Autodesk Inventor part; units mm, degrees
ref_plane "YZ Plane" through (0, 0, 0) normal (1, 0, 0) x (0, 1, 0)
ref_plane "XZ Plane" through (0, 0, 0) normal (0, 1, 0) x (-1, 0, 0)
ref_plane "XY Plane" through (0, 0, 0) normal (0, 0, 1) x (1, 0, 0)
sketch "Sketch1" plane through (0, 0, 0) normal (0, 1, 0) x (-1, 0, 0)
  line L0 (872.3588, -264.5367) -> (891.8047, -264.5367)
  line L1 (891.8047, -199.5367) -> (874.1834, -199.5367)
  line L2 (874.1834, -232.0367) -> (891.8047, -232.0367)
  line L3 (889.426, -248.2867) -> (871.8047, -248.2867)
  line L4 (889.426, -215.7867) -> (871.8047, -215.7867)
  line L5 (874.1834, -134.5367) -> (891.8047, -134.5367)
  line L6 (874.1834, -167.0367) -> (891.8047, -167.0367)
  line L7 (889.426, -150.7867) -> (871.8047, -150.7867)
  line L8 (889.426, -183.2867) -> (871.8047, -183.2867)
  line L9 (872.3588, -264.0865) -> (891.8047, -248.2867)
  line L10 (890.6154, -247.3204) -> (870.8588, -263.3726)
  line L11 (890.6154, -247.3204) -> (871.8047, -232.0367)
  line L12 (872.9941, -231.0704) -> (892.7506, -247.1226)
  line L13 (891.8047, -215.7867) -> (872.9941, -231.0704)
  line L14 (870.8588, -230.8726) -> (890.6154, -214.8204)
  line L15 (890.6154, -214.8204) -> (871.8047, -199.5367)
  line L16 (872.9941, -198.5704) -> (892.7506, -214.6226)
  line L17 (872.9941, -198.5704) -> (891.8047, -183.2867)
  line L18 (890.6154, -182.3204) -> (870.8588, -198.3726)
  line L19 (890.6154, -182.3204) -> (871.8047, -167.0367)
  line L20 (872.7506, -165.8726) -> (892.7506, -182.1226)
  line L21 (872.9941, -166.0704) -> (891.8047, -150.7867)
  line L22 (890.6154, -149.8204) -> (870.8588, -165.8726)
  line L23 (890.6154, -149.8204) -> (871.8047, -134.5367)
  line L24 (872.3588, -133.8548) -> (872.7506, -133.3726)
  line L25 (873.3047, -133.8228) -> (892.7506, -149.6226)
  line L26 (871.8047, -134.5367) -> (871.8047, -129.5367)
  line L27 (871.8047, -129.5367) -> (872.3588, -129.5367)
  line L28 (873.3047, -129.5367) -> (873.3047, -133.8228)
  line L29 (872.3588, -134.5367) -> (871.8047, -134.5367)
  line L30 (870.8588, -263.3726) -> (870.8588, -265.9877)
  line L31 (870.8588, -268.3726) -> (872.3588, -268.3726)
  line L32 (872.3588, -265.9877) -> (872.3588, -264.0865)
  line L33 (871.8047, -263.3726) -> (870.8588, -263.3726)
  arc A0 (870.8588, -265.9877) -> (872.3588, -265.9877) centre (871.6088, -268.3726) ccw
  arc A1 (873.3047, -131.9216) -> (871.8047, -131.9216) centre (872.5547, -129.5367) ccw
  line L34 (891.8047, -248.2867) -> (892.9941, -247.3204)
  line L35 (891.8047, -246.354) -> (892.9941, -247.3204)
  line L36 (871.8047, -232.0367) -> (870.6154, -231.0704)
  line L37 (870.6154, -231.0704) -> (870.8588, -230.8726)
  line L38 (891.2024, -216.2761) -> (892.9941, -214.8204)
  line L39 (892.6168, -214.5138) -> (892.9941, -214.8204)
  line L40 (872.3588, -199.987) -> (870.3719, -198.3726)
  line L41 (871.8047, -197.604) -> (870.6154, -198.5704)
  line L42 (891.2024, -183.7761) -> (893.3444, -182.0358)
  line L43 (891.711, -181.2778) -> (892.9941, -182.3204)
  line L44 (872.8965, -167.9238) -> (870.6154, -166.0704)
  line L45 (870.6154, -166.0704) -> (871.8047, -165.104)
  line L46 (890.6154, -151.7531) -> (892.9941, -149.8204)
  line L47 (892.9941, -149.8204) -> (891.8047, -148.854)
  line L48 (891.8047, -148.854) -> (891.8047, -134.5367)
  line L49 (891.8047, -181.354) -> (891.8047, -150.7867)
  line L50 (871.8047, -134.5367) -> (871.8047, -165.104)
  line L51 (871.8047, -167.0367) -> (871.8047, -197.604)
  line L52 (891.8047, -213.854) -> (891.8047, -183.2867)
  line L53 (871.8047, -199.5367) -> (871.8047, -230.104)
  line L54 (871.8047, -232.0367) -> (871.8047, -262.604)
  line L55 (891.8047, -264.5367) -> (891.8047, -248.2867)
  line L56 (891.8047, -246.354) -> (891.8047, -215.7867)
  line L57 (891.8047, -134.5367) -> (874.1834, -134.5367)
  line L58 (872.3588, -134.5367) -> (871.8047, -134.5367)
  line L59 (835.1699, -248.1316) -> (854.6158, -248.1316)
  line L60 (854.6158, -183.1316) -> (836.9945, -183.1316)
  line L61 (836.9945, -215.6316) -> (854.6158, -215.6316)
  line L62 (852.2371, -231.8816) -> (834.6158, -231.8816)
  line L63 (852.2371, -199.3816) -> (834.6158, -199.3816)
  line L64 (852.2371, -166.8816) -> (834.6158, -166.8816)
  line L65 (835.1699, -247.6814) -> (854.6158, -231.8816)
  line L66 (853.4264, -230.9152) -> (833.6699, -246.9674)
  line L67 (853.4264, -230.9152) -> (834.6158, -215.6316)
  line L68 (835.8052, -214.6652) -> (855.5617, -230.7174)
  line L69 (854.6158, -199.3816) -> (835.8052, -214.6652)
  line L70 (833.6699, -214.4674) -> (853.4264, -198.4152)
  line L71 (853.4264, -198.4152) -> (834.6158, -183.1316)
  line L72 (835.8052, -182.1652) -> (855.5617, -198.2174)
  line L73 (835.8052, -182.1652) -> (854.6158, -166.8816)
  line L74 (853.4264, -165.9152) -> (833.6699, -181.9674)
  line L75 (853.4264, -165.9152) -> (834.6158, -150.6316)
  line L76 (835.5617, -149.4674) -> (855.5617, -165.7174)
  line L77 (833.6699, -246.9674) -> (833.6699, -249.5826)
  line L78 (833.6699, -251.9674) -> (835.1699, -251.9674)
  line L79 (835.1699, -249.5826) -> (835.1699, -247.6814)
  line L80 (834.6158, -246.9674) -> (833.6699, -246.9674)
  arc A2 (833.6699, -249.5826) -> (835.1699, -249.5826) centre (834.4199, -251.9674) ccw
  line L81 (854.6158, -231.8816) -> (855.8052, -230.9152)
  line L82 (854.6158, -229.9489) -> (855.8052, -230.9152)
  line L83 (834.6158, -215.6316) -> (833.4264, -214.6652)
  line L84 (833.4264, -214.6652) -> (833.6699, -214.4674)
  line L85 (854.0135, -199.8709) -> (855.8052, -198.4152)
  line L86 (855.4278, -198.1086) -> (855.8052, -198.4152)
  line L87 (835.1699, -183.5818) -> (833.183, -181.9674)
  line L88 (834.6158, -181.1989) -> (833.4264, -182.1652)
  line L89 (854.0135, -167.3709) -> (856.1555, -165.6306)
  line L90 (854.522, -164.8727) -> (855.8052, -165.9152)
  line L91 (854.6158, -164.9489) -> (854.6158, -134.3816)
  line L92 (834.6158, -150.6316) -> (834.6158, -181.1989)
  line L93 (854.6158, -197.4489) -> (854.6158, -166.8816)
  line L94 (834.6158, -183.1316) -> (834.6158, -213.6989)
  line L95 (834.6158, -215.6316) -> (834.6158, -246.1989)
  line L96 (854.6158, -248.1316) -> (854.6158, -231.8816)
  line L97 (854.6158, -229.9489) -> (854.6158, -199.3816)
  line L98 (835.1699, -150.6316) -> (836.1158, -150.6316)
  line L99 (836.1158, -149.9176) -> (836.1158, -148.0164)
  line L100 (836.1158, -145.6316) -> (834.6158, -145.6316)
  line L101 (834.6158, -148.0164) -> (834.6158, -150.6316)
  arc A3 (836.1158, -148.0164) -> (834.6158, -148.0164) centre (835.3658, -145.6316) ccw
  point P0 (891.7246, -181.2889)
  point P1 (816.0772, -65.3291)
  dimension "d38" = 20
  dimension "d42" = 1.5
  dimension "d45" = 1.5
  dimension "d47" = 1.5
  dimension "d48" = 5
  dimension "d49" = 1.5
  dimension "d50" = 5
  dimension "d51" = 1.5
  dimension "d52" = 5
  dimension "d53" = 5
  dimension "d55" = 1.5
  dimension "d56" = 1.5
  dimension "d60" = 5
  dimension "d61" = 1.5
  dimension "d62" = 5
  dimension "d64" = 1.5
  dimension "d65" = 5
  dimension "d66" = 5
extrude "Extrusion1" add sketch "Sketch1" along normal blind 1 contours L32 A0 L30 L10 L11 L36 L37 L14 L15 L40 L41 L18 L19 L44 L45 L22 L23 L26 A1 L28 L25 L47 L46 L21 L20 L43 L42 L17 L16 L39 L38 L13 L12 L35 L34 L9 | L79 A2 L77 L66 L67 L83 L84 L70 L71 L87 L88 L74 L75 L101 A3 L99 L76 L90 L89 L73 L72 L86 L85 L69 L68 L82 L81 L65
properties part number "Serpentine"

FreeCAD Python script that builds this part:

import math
import FreeCAD as App
import Part
import Sketcher

doc = App.newDocument("Part")
body = doc.addObject("PartDesign::Body", "Body")
body.AllowCompound = True

# Sketch on XZ plane
sketch1 = body.newObject("Sketcher::SketchObject", "Sketch")
sketch1.AttachmentSupport = (doc.getObject("XZ_Plane"), [""])
sketch1.MapMode = "FlatFace"
sketch1.addGeometry([
    Part.LineSegment(App.Vector(-872.36, -265.99, 0), App.Vector(-872.36, -264.09, 0)),  # 0
    Part.LineSegment(App.Vector(-872.36, -264.09, 0), App.Vector(-891.8, -248.29, 0)),  # 1
    Part.LineSegment(App.Vector(-891.8, -248.29, 0), App.Vector(-892.99, -247.32, 0)),  # 2
    Part.LineSegment(App.Vector(-892.99, -247.32, 0), App.Vector(-892.75, -247.12, 0)),  # 3
    Part.LineSegment(App.Vector(-892.75, -247.12, 0), App.Vector(-872.99, -231.07, 0)),  # 4
    Part.LineSegment(App.Vector(-872.99, -231.07, 0), App.Vector(-891.8, -215.79, 0)),  # 5
    Part.LineSegment(App.Vector(-891.8, -215.79, 0), App.Vector(-892.99, -214.82, 0)),  # 6
    Part.LineSegment(App.Vector(-892.99, -214.82, 0), App.Vector(-892.75, -214.62, 0)),  # 7
    Part.LineSegment(App.Vector(-892.75, -214.62, 0), App.Vector(-872.99, -198.57, 0)),  # 8
    Part.LineSegment(App.Vector(-872.99, -198.57, 0), App.Vector(-891.8, -183.29, 0)),  # 9
    Part.LineSegment(App.Vector(-891.8, -183.29, 0), App.Vector(-892.99, -182.32, 0)),  # 10
    Part.LineSegment(App.Vector(-892.99, -182.32, 0), App.Vector(-892.75, -182.12, 0)),  # 11
    Part.LineSegment(App.Vector(-892.75, -182.12, 0), App.Vector(-872.99, -166.07, 0)),  # 12
    Part.LineSegment(App.Vector(-872.99, -166.07, 0), App.Vector(-891.8, -150.79, 0)),  # 13
    Part.LineSegment(App.Vector(-891.8, -150.79, 0), App.Vector(-892.99, -149.82, 0)),  # 14
    Part.LineSegment(App.Vector(-892.99, -149.82, 0), App.Vector(-892.75, -149.62, 0)),  # 15
    Part.LineSegment(App.Vector(-892.75, -149.62, 0), App.Vector(-873.3, -133.82, 0)),  # 16
    Part.LineSegment(App.Vector(-873.3, -133.82, 0), App.Vector(-873.3, -131.92, 0)),  # 17
    Part.ArcOfCircle(Part.Circle(App.Vector(-872.55, -129.54, 0), App.Vector(0, 0, 1), 2.5), math.radians(-73), math.radians(253)),  # 18
    Part.LineSegment(App.Vector(-871.8, -131.92, 0), App.Vector(-871.8, -134.54, 0)),  # 19
    Part.LineSegment(App.Vector(-871.8, -134.54, 0), App.Vector(-890.62, -149.82, 0)),  # 20
    Part.LineSegment(App.Vector(-890.62, -149.82, 0), App.Vector(-870.86, -165.87, 0)),  # 21
    Part.LineSegment(App.Vector(-870.86, -165.87, 0), App.Vector(-870.62, -166.07, 0)),  # 22
    Part.LineSegment(App.Vector(-870.62, -166.07, 0), App.Vector(-871.8, -167.04, 0)),  # 23
    Part.LineSegment(App.Vector(-871.8, -167.04, 0), App.Vector(-890.62, -182.32, 0)),  # 24
    Part.LineSegment(App.Vector(-890.62, -182.32, 0), App.Vector(-870.86, -198.37, 0)),  # 25
    Part.LineSegment(App.Vector(-870.86, -198.37, 0), App.Vector(-870.62, -198.57, 0)),  # 26
    Part.LineSegment(App.Vector(-870.62, -198.57, 0), App.Vector(-871.8, -199.54, 0)),  # 27
    Part.LineSegment(App.Vector(-871.8, -199.54, 0), App.Vector(-890.62, -214.82, 0)),  # 28
    Part.LineSegment(App.Vector(-890.62, -214.82, 0), App.Vector(-870.86, -230.87, 0)),  # 29
    Part.LineSegment(App.Vector(-870.86, -230.87, 0), App.Vector(-870.62, -231.07, 0)),  # 30
    Part.LineSegment(App.Vector(-870.62, -231.07, 0), App.Vector(-871.8, -232.04, 0)),  # 31
    Part.LineSegment(App.Vector(-871.8, -232.04, 0), App.Vector(-890.62, -247.32, 0)),  # 32
    Part.LineSegment(App.Vector(-890.62, -247.32, 0), App.Vector(-870.86, -263.37, 0)),  # 33
    Part.LineSegment(App.Vector(-870.86, -263.37, 0), App.Vector(-870.86, -265.99, 0)),  # 34
    Part.ArcOfCircle(Part.Circle(App.Vector(-871.61, -268.37, 0), App.Vector(0, 0, 1), 2.5), math.radians(107), math.radians(433)),  # 35
    Part.LineSegment(App.Vector(-835.17, -249.58, 0), App.Vector(-835.17, -247.68, 0)),  # 36
    Part.LineSegment(App.Vector(-835.17, -247.68, 0), App.Vector(-854.62, -231.88, 0)),  # 37
    Part.LineSegment(App.Vector(-854.62, -231.88, 0), App.Vector(-855.81, -230.92, 0)),  # 38
    Part.LineSegment(App.Vector(-855.81, -230.92, 0), App.Vector(-855.56, -230.72, 0)),  # 39
    Part.LineSegment(App.Vector(-855.56, -230.72, 0), App.Vector(-835.81, -214.67, 0)),  # 40
    Part.LineSegment(App.Vector(-835.81, -214.67, 0), App.Vector(-854.62, -199.38, 0)),  # 41
    Part.LineSegment(App.Vector(-854.62, -199.38, 0), App.Vector(-855.81, -198.42, 0)),  # 42
    Part.LineSegment(App.Vector(-855.81, -198.42, 0), App.Vector(-855.56, -198.22, 0)),  # 43
    Part.LineSegment(App.Vector(-855.56, -198.22, 0), App.Vector(-835.81, -182.17, 0)),  # 44
    Part.LineSegment(App.Vector(-835.81, -182.17, 0), App.Vector(-854.62, -166.88, 0)),  # 45
    Part.LineSegment(App.Vector(-854.62, -166.88, 0), App.Vector(-855.81, -165.92, 0)),  # 46
    Part.LineSegment(App.Vector(-855.81, -165.92, 0), App.Vector(-855.56, -165.72, 0)),  # 47
    Part.LineSegment(App.Vector(-855.56, -165.72, 0), App.Vector(-836.12, -149.92, 0)),  # 48
    Part.LineSegment(App.Vector(-836.12, -149.92, 0), App.Vector(-836.12, -148.02, 0)),  # 49
    Part.ArcOfCircle(Part.Circle(App.Vector(-835.37, -145.63, 0), App.Vector(0, 0, 1), 2.5), math.radians(-73), math.radians(253)),  # 50
    Part.LineSegment(App.Vector(-834.62, -148.02, 0), App.Vector(-834.62, -150.63, 0)),  # 51
    Part.LineSegment(App.Vector(-834.62, -150.63, 0), App.Vector(-853.43, -165.92, 0)),  # 52
    Part.LineSegment(App.Vector(-853.43, -165.92, 0), App.Vector(-833.67, -181.97, 0)),  # 53
    Part.LineSegment(App.Vector(-833.67, -181.97, 0), App.Vector(-833.43, -182.17, 0)),  # 54
    Part.LineSegment(App.Vector(-833.43, -182.17, 0), App.Vector(-834.62, -183.13, 0)),  # 55
    Part.LineSegment(App.Vector(-834.62, -183.13, 0), App.Vector(-853.43, -198.42, 0)),  # 56
    Part.LineSegment(App.Vector(-853.43, -198.42, 0), App.Vector(-833.67, -214.47, 0)),  # 57
    Part.LineSegment(App.Vector(-833.67, -214.47, 0), App.Vector(-833.43, -214.67, 0)),  # 58
    Part.LineSegment(App.Vector(-833.43, -214.67, 0), App.Vector(-834.62, -215.63, 0)),  # 59
    Part.LineSegment(App.Vector(-834.62, -215.63, 0), App.Vector(-853.43, -230.92, 0)),  # 60
    Part.LineSegment(App.Vector(-853.43, -230.92, 0), App.Vector(-833.67, -246.97, 0)),  # 61
    Part.LineSegment(App.Vector(-833.67, -246.97, 0), App.Vector(-833.67, -249.58, 0)),  # 62
    Part.ArcOfCircle(Part.Circle(App.Vector(-834.42, -251.97, 0), App.Vector(0, 0, 1), 2.5), math.radians(107), math.radians(433)),  # 63
], False)
sketch1.addConstraint([
    Sketcher.Constraint("Coincident", 0, 2, 1, 1),
    Sketcher.Constraint("Coincident", 1, 2, 2, 1),
    Sketcher.Constraint("Coincident", 2, 2, 3, 1),
    Sketcher.Constraint("Coincident", 3, 2, 4, 1),
    Sketcher.Constraint("Coincident", 4, 2, 5, 1),
    Sketcher.Constraint("Coincident", 5, 2, 6, 1),
    Sketcher.Constraint("Coincident", 6, 2, 7, 1),
    Sketcher.Constraint("Coincident", 7, 2, 8, 1),
    Sketcher.Constraint("Coincident", 8, 2, 9, 1),
    Sketcher.Constraint("Coincident", 9, 2, 10, 1),
    Sketcher.Constraint("Coincident", 10, 2, 11, 1),
    Sketcher.Constraint("Coincident", 11, 2, 12, 1),
    Sketcher.Constraint("Coincident", 12, 2, 13, 1),
    Sketcher.Constraint("Coincident", 13, 2, 14, 1),
    Sketcher.Constraint("Coincident", 14, 2, 15, 1),
    Sketcher.Constraint("Coincident", 15, 2, 16, 1),
    Sketcher.Constraint("Coincident", 16, 2, 17, 1),
    Sketcher.Constraint("Coincident", 17, 2, 18, 2),
    Sketcher.Constraint("Coincident", 18, 1, 19, 1),
    Sketcher.Constraint("Coincident", 19, 2, 20, 1),
    Sketcher.Constraint("Coincident", 20, 2, 21, 1),
    Sketcher.Constraint("Coincident", 21, 2, 22, 1),
    Sketcher.Constraint("Coincident", 22, 2, 23, 1),
    Sketcher.Constraint("Coincident", 23, 2, 24, 1),
    Sketcher.Constraint("Coincident", 24, 2, 25, 1),
    Sketcher.Constraint("Coincident", 25, 2, 26, 1),
    Sketcher.Constraint("Coincident", 26, 2, 27, 1),
    Sketcher.Constraint("Coincident", 27, 2, 28, 1),
    Sketcher.Constraint("Coincident", 28, 2, 29, 1),
    Sketcher.Constraint("Coincident", 29, 2, 30, 1),
    Sketcher.Constraint("Coincident", 30, 2, 31, 1),
    Sketcher.Constraint("Coincident", 31, 2, 32, 1),
    Sketcher.Constraint("Coincident", 32, 2, 33, 1),
    Sketcher.Constraint("Coincident", 33, 2, 34, 1),
    Sketcher.Constraint("Coincident", 34, 2, 35, 2),
    Sketcher.Constraint("Coincident", 35, 1, 0, 1),
    Sketcher.Constraint("Coincident", 36, 2, 37, 1),
    Sketcher.Constraint("Coincident", 37, 2, 38, 1),
    Sketcher.Constraint("Coincident", 38, 2, 39, 1),
    Sketcher.Constraint("Coincident", 39, 2, 40, 1),
    Sketcher.Constraint("Coincident", 40, 2, 41, 1),
    Sketcher.Constraint("Coincident", 41, 2, 42, 1),
    Sketcher.Constraint("Coincident", 42, 2, 43, 1),
    Sketcher.Constraint("Coincident", 43, 2, 44, 1),
    Sketcher.Constraint("Coincident", 44, 2, 45, 1),
    Sketcher.Constraint("Coincident", 45, 2, 46, 1),
    Sketcher.Constraint("Coincident", 46, 2, 47, 1),
    Sketcher.Constraint("Coincident", 47, 2, 48, 1),
    Sketcher.Constraint("Coincident", 48, 2, 49, 1),
    Sketcher.Constraint("Coincident", 49, 2, 50, 2),
    Sketcher.Constraint("Coincident", 50, 1, 51, 1),
    Sketcher.Constraint("Coincident", 51, 2, 52, 1),
    Sketcher.Constraint("Coincident", 52, 2, 53, 1),
    Sketcher.Constraint("Coincident", 53, 2, 54, 1),
    Sketcher.Constraint("Coincident", 54, 2, 55, 1),
    Sketcher.Constraint("Coincident", 55, 2, 56, 1),
    Sketcher.Constraint("Coincident", 56, 2, 57, 1),
    Sketcher.Constraint("Coincident", 57, 2, 58, 1),
    Sketcher.Constraint("Coincident", 58, 2, 59, 1),
    Sketcher.Constraint("Coincident", 59, 2, 60, 1),
    Sketcher.Constraint("Coincident", 60, 2, 61, 1),
    Sketcher.Constraint("Coincident", 61, 2, 62, 1),
    Sketcher.Constraint("Coincident", 62, 2, 63, 2),
    Sketcher.Constraint("Coincident", 63, 1, 36, 1),
    Sketcher.Constraint("Vertical", 0),
    Sketcher.Constraint("Vertical", 17),
    Sketcher.Constraint("Vertical", 19),
    Sketcher.Constraint("Vertical", 34),
    Sketcher.Constraint("Vertical", 36),
    Sketcher.Constraint("Vertical", 49),
    Sketcher.Constraint("Vertical", 51),
    Sketcher.Constraint("Vertical", 62),
    Sketcher.Constraint("Equal", 18, 35),
    Sketcher.Constraint("Equal", 35, 50),
    Sketcher.Constraint("Equal", 50, 63),
    Sketcher.Constraint("Parallel", 1, 2),
    Sketcher.Constraint("Parallel", 3, 4),
    Sketcher.Constraint("Parallel", 2, 5),
    Sketcher.Constraint("Parallel", 5, 6),
    Sketcher.Constraint("Parallel", 4, 7),
    Sketcher.Constraint("Parallel", 7, 8),
    Sketcher.Constraint("Parallel", 6, 9),
    Sketcher.Constraint("Parallel", 9, 10),
    Sketcher.Constraint("Parallel", 8, 11),
    Sketcher.Constraint("Parallel", 11, 12),
    Sketcher.Constraint("Parallel", 10, 13),
    Sketcher.Constraint("Parallel", 13, 14),
    Sketcher.Constraint("Parallel", 12, 15),
    Sketcher.Constraint("Parallel", 15, 16),
    Sketcher.Constraint("Parallel", 16, 20),
    Sketcher.Constraint("Parallel", 14, 21),
    Sketcher.Constraint("Parallel", 21, 22),
    Sketcher.Constraint("Parallel", 20, 23),
    Sketcher.Constraint("Parallel", 23, 24),
    Sketcher.Constraint("Parallel", 22, 25),
    Sketcher.Constraint("Parallel", 25, 26),
    Sketcher.Constraint("Parallel", 24, 27),
    Sketcher.Constraint("Parallel", 27, 28),
    Sketcher.Constraint("Parallel", 26, 29),
    Sketcher.Constraint("Parallel", 29, 30),
    Sketcher.Constraint("Parallel", 28, 31),
    Sketcher.Constraint("Parallel", 31, 32),
    Sketcher.Constraint("Parallel", 30, 33),
    Sketcher.Constraint("Parallel", 33, 37),
    Sketcher.Constraint("Parallel", 37, 38),
    Sketcher.Constraint("Parallel", 32, 39),
    Sketcher.Constraint("Parallel", 39, 40),
    Sketcher.Constraint("Parallel", 38, 41),
    Sketcher.Constraint("Parallel", 41, 42),
    Sketcher.Constraint("Parallel", 40, 43),
    Sketcher.Constraint("Parallel", 43, 44),
    Sketcher.Constraint("Parallel", 42, 45),
    Sketcher.Constraint("Parallel", 45, 46),
    Sketcher.Constraint("Parallel", 44, 47),
    Sketcher.Constraint("Parallel", 47, 48),
    Sketcher.Constraint("Parallel", 48, 52),
    Sketcher.Constraint("Parallel", 46, 53),
    Sketcher.Constraint("Parallel", 53, 54),
    Sketcher.Constraint("Parallel", 52, 55),
    Sketcher.Constraint("Parallel", 55, 56),
    Sketcher.Constraint("Parallel", 54, 57),
    Sketcher.Constraint("Parallel", 57, 58),
    Sketcher.Constraint("Parallel", 56, 59),
    Sketcher.Constraint("Parallel", 59, 60),
    Sketcher.Constraint("Parallel", 58, 61),
    Sketcher.Constraint("Horizontal", 17, 2, 18, 1),
    Sketcher.Constraint("Horizontal", 14, 2, 20, 2),
    Sketcher.Constraint("Horizontal", 12, 2, 22, 2),
    Sketcher.Constraint("Horizontal", 10, 2, 24, 2),
    Sketcher.Constraint("Horizontal", 8, 2, 26, 2),
    Sketcher.Constraint("Horizontal", 6, 2, 28, 2),
    Sketcher.Constraint("Horizontal", 4, 2, 30, 2),
    Sketcher.Constraint("Horizontal", 2, 2, 32, 2),
    Sketcher.Constraint("Horizontal", 34, 2, 35, 1),
    Sketcher.Constraint("Horizontal", 49, 2, 50, 1),
    Sketcher.Constraint("Horizontal", 46, 2, 52, 2),
    Sketcher.Constraint("Horizontal", 44, 2, 54, 2),
    Sketcher.Constraint("Horizontal", 42, 2, 56, 2),
    Sketcher.Constraint("Horizontal", 40, 2, 58, 2),
    Sketcher.Constraint("Horizontal", 38, 2, 60, 2),
    Sketcher.Constraint("Horizontal", 62, 2, 63, 1),
    Sketcher.Constraint("Vertical", 1, 2, 5, 2),
    Sketcher.Constraint("Vertical", 2, 2, 6, 2),
    Sketcher.Constraint("Vertical", 3, 2, 7, 2),
    Sketcher.Constraint("Vertical", 4, 2, 8, 2),
    Sketcher.Constraint("Vertical", 5, 2, 9, 2),
    Sketcher.Constraint("Vertical", 6, 2, 10, 2),
    Sketcher.Constraint("Vertical", 7, 2, 11, 2),
    Sketcher.Constraint("Vertical", 8, 2, 12, 2),
    Sketcher.Constraint("Vertical", 9, 2, 13, 2),
    Sketcher.Constraint("Vertical", 10, 2, 14, 2),
    Sketcher.Constraint("Vertical", 11, 2, 15, 2),
    Sketcher.Constraint("Vertical", 19, 2, 23, 2),
    Sketcher.Constraint("Vertical", 21, 2, 25, 2),
    Sketcher.Constraint("Vertical", 23, 2, 27, 2),
    Sketcher.Constraint("Vertical", 25, 2, 29, 2),
    Sketcher.Constraint("Vertical", 27, 2, 31, 2),
    Sketcher.Constraint("Vertical", 29, 2, 33, 2),
    Sketcher.Constraint("Vertical", 37, 2, 41, 2),
    Sketcher.Constraint("Vertical", 38, 2, 42, 2),
    Sketcher.Constraint("Vertical", 39, 2, 43, 2),
    Sketcher.Constraint("Vertical", 40, 2, 44, 2),
    Sketcher.Constraint("Vertical", 41, 2, 45, 2),
    Sketcher.Constraint("Vertical", 42, 2, 46, 2),
    Sketcher.Constraint("Vertical", 43, 2, 47, 2),
    Sketcher.Constraint("Vertical", 51, 2, 55, 2),
    Sketcher.Constraint("Vertical", 53, 2, 57, 2),
    Sketcher.Constraint("Vertical", 55, 2, 59, 2),
    Sketcher.Constraint("Vertical", 57, 2, 61, 2),
    Sketcher.Constraint("Equal", 0, 17),
    Sketcher.Constraint("Equal", 19, 34),
    Sketcher.Constraint("Equal", 17, 36),
    Sketcher.Constraint("Equal", 36, 49),
    Sketcher.Constraint("Equal", 34, 51),
    Sketcher.Constraint("Equal", 51, 62),
    Sketcher.Constraint("Equal", 1, 16),
    Sketcher.Constraint("Equal", 13, 20),
    Sketcher.Constraint("Equal", 12, 21),
    Sketcher.Constraint("Equal", 16, 37),
    Sketcher.Constraint("Equal", 31, 38),
    Sketcher.Constraint("Equal", 30, 39),
    Sketcher.Constraint("Equal", 33, 40),
    Sketcher.Constraint("Equal", 37, 48),
    Sketcher.Constraint("Radius", 18, 2.5),
    Sketcher.Constraint("DistanceY", 19, 2, 19, 1, 2.615),
    Sketcher.Constraint("DistanceX", 63, 3, -1, 1, 834.42),
    Sketcher.Constraint("DistanceX", 36, 2, -1, 1, 835.17),
    Sketcher.Constraint("Distance", 5, 24.237),
    Sketcher.Constraint("DistanceY", 0, 1, 0, 2, 1.9012),
    Sketcher.Constraint("DistanceX", 2, 2, -1, 1, 892.994),
    Sketcher.Constraint("DistanceX", 4, 2, -1, 1, 872.994),
    Sketcher.Constraint("Distance", 1, 25.0555),
    Sketcher.Constraint("Distance", 2, 1.5325),
    Sketcher.Constraint("DistanceX", 18, 3, -1, 1, 872.5547),
    Sketcher.Constraint("DistanceY", 18, 3, -1, 1, 129.5367),
    Sketcher.Constraint("DistanceY", 50, 3, -1, 1, 145.6316),
])
pad1 = body.newObject("PartDesign::Pad", "Pad")
pad1.Profile = sketch1
pad1.Length = 1
pad1.Reversed = True

doc.recompute()
